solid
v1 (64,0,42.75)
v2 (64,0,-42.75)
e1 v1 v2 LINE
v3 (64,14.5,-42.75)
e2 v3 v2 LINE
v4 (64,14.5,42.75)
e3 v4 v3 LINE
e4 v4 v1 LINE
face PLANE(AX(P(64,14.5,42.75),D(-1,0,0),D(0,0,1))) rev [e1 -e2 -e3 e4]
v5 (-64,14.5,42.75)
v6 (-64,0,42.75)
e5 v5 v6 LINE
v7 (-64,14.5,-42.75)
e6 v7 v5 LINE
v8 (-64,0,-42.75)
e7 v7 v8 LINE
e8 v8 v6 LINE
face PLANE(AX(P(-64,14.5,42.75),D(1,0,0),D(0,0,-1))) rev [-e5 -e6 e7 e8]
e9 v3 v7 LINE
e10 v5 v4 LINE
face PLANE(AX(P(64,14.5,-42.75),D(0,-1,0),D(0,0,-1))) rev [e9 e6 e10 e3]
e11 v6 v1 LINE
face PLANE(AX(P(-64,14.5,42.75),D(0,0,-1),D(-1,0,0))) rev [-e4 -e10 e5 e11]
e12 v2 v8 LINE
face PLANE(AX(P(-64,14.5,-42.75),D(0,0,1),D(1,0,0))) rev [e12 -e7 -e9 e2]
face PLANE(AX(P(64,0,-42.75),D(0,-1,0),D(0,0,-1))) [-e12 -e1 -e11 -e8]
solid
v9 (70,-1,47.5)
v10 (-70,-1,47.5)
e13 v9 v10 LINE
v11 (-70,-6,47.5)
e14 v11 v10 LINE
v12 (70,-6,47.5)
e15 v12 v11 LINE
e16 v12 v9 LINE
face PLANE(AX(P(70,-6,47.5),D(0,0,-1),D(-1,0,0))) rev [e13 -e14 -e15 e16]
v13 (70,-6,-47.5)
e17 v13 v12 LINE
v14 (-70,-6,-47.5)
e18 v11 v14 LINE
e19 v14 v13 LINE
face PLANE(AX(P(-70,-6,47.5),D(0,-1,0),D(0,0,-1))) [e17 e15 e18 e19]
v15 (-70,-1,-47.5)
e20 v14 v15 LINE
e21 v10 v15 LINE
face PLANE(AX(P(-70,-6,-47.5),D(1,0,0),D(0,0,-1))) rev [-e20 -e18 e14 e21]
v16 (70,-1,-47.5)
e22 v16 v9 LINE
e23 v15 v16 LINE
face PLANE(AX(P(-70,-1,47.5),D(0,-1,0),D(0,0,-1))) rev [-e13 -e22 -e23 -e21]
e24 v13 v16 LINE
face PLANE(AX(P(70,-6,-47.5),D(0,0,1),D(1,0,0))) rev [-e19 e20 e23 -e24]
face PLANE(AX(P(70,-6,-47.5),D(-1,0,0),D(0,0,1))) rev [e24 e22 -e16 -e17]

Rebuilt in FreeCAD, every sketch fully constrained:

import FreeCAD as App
import Part
import Sketcher

V = App.Vector
Q = App.Units.Quantity

doc = App.newDocument("Part")
body = doc.addObject("PartDesign::Body", "Body")

sketch1 = body.newObject("Sketcher::SketchObject", "Sketch")
sketch1.AttachmentSupport = (doc.getObject("XZ_Plane"), [""])
sketch1.MapMode = "FlatFace"
sketch1.addGeometry(Part.LineSegment(V(-64, -43, 0), V(-64, 43, 0)), False)
sketch1.addGeometry(Part.LineSegment(V(-64, 43, 0), V(64, 43, 0)), False)
sketch1.addGeometry(Part.LineSegment(V(64, 43, 0), V(64, -43, 0)), False)
sketch1.addGeometry(Part.LineSegment(V(64, -43, 0), V(-64, -43, 0)), False)
sketch1.addConstraint(Sketcher.Constraint("Coincident", 0, 2, 1, 1))
sketch1.addConstraint(Sketcher.Constraint("Coincident", 1, 2, 2, 1))
sketch1.addConstraint(Sketcher.Constraint("Coincident", 2, 2, 3, 1))
sketch1.addConstraint(Sketcher.Constraint("Coincident", 3, 2, 0, 1))
sketch1.addConstraint(Sketcher.Constraint("Vertical", 0))
sketch1.addConstraint(Sketcher.Constraint("Horizontal", 1))
sketch1.addConstraint(Sketcher.Constraint("Vertical", 2))
sketch1.addConstraint(Sketcher.Constraint("Horizontal", 3))
sketch1.addConstraint(Sketcher.Constraint("Symmetric", 0, 2, 2, 2, -1, 1))
sketch1.addConstraint(Sketcher.Constraint("DistanceX", 1, 1, 1, 2, Q("128 mm")))
sketch1.addConstraint(Sketcher.Constraint("DistanceY", 0, 1, 0, 2, Q("85.5 mm")))
pad1 = body.newObject("PartDesign::Pad", "Pad")
pad1.Profile = sketch1
pad1.Length = 14.5
pad1.Reversed = True
body2 = doc.addObject("PartDesign::Body", "Body001")

sketch2 = body2.newObject("Sketcher::SketchObject", "Sketch001")
sketch2.AttachmentSupport = (doc.getObject("XZ_Plane001"), [""])
sketch2.MapMode = "FlatFace"
sketch2.AttachmentOffset = App.Placement(V(0, 0, 1), App.Rotation())
sketch2.addGeometry(Part.LineSegment(V(-70, 48, 0), V(-70, -48, 0)), False)
sketch2.addGeometry(Part.LineSegment(V(-70, -48, 0), V(70, -48, 0)), False)
sketch2.addGeometry(Part.LineSegment(V(70, -48, 0), V(70, 48, 0)), False)
sketch2.addGeometry(Part.LineSegment(V(70, 48, 0), V(-70, 48, 0)), False)
sketch2.addConstraint(Sketcher.Constraint("Coincident", 0, 2, 1, 1))
sketch2.addConstraint(Sketcher.Constraint("Coincident", 1, 2, 2, 1))
sketch2.addConstraint(Sketcher.Constraint("Coincident", 2, 2, 3, 1))
sketch2.addConstraint(Sketcher.Constraint("Coincident", 3, 2, 0, 1))
sketch2.addConstraint(Sketcher.Constraint("Vertical", 0))
sketch2.addConstraint(Sketcher.Constraint("Horizontal", 1))
sketch2.addConstraint(Sketcher.Constraint("Vertical", 2))
sketch2.addConstraint(Sketcher.Constraint("Horizontal", 3))
sketch2.addConstraint(Sketcher.Constraint("Symmetric", 0, 2, 2, 2, -1, 1))
sketch2.addConstraint(Sketcher.Constraint("DistanceX", 1, 1, 1, 2, Q("140 mm")))
sketch2.addConstraint(Sketcher.Constraint("DistanceY", 0, 2, 0, 1, Q("95 mm")))
pad2 = body2.newObject("PartDesign::Pad", "Pad001")
pad2.Profile = sketch2
pad2.Length = 5

doc.recompute()
